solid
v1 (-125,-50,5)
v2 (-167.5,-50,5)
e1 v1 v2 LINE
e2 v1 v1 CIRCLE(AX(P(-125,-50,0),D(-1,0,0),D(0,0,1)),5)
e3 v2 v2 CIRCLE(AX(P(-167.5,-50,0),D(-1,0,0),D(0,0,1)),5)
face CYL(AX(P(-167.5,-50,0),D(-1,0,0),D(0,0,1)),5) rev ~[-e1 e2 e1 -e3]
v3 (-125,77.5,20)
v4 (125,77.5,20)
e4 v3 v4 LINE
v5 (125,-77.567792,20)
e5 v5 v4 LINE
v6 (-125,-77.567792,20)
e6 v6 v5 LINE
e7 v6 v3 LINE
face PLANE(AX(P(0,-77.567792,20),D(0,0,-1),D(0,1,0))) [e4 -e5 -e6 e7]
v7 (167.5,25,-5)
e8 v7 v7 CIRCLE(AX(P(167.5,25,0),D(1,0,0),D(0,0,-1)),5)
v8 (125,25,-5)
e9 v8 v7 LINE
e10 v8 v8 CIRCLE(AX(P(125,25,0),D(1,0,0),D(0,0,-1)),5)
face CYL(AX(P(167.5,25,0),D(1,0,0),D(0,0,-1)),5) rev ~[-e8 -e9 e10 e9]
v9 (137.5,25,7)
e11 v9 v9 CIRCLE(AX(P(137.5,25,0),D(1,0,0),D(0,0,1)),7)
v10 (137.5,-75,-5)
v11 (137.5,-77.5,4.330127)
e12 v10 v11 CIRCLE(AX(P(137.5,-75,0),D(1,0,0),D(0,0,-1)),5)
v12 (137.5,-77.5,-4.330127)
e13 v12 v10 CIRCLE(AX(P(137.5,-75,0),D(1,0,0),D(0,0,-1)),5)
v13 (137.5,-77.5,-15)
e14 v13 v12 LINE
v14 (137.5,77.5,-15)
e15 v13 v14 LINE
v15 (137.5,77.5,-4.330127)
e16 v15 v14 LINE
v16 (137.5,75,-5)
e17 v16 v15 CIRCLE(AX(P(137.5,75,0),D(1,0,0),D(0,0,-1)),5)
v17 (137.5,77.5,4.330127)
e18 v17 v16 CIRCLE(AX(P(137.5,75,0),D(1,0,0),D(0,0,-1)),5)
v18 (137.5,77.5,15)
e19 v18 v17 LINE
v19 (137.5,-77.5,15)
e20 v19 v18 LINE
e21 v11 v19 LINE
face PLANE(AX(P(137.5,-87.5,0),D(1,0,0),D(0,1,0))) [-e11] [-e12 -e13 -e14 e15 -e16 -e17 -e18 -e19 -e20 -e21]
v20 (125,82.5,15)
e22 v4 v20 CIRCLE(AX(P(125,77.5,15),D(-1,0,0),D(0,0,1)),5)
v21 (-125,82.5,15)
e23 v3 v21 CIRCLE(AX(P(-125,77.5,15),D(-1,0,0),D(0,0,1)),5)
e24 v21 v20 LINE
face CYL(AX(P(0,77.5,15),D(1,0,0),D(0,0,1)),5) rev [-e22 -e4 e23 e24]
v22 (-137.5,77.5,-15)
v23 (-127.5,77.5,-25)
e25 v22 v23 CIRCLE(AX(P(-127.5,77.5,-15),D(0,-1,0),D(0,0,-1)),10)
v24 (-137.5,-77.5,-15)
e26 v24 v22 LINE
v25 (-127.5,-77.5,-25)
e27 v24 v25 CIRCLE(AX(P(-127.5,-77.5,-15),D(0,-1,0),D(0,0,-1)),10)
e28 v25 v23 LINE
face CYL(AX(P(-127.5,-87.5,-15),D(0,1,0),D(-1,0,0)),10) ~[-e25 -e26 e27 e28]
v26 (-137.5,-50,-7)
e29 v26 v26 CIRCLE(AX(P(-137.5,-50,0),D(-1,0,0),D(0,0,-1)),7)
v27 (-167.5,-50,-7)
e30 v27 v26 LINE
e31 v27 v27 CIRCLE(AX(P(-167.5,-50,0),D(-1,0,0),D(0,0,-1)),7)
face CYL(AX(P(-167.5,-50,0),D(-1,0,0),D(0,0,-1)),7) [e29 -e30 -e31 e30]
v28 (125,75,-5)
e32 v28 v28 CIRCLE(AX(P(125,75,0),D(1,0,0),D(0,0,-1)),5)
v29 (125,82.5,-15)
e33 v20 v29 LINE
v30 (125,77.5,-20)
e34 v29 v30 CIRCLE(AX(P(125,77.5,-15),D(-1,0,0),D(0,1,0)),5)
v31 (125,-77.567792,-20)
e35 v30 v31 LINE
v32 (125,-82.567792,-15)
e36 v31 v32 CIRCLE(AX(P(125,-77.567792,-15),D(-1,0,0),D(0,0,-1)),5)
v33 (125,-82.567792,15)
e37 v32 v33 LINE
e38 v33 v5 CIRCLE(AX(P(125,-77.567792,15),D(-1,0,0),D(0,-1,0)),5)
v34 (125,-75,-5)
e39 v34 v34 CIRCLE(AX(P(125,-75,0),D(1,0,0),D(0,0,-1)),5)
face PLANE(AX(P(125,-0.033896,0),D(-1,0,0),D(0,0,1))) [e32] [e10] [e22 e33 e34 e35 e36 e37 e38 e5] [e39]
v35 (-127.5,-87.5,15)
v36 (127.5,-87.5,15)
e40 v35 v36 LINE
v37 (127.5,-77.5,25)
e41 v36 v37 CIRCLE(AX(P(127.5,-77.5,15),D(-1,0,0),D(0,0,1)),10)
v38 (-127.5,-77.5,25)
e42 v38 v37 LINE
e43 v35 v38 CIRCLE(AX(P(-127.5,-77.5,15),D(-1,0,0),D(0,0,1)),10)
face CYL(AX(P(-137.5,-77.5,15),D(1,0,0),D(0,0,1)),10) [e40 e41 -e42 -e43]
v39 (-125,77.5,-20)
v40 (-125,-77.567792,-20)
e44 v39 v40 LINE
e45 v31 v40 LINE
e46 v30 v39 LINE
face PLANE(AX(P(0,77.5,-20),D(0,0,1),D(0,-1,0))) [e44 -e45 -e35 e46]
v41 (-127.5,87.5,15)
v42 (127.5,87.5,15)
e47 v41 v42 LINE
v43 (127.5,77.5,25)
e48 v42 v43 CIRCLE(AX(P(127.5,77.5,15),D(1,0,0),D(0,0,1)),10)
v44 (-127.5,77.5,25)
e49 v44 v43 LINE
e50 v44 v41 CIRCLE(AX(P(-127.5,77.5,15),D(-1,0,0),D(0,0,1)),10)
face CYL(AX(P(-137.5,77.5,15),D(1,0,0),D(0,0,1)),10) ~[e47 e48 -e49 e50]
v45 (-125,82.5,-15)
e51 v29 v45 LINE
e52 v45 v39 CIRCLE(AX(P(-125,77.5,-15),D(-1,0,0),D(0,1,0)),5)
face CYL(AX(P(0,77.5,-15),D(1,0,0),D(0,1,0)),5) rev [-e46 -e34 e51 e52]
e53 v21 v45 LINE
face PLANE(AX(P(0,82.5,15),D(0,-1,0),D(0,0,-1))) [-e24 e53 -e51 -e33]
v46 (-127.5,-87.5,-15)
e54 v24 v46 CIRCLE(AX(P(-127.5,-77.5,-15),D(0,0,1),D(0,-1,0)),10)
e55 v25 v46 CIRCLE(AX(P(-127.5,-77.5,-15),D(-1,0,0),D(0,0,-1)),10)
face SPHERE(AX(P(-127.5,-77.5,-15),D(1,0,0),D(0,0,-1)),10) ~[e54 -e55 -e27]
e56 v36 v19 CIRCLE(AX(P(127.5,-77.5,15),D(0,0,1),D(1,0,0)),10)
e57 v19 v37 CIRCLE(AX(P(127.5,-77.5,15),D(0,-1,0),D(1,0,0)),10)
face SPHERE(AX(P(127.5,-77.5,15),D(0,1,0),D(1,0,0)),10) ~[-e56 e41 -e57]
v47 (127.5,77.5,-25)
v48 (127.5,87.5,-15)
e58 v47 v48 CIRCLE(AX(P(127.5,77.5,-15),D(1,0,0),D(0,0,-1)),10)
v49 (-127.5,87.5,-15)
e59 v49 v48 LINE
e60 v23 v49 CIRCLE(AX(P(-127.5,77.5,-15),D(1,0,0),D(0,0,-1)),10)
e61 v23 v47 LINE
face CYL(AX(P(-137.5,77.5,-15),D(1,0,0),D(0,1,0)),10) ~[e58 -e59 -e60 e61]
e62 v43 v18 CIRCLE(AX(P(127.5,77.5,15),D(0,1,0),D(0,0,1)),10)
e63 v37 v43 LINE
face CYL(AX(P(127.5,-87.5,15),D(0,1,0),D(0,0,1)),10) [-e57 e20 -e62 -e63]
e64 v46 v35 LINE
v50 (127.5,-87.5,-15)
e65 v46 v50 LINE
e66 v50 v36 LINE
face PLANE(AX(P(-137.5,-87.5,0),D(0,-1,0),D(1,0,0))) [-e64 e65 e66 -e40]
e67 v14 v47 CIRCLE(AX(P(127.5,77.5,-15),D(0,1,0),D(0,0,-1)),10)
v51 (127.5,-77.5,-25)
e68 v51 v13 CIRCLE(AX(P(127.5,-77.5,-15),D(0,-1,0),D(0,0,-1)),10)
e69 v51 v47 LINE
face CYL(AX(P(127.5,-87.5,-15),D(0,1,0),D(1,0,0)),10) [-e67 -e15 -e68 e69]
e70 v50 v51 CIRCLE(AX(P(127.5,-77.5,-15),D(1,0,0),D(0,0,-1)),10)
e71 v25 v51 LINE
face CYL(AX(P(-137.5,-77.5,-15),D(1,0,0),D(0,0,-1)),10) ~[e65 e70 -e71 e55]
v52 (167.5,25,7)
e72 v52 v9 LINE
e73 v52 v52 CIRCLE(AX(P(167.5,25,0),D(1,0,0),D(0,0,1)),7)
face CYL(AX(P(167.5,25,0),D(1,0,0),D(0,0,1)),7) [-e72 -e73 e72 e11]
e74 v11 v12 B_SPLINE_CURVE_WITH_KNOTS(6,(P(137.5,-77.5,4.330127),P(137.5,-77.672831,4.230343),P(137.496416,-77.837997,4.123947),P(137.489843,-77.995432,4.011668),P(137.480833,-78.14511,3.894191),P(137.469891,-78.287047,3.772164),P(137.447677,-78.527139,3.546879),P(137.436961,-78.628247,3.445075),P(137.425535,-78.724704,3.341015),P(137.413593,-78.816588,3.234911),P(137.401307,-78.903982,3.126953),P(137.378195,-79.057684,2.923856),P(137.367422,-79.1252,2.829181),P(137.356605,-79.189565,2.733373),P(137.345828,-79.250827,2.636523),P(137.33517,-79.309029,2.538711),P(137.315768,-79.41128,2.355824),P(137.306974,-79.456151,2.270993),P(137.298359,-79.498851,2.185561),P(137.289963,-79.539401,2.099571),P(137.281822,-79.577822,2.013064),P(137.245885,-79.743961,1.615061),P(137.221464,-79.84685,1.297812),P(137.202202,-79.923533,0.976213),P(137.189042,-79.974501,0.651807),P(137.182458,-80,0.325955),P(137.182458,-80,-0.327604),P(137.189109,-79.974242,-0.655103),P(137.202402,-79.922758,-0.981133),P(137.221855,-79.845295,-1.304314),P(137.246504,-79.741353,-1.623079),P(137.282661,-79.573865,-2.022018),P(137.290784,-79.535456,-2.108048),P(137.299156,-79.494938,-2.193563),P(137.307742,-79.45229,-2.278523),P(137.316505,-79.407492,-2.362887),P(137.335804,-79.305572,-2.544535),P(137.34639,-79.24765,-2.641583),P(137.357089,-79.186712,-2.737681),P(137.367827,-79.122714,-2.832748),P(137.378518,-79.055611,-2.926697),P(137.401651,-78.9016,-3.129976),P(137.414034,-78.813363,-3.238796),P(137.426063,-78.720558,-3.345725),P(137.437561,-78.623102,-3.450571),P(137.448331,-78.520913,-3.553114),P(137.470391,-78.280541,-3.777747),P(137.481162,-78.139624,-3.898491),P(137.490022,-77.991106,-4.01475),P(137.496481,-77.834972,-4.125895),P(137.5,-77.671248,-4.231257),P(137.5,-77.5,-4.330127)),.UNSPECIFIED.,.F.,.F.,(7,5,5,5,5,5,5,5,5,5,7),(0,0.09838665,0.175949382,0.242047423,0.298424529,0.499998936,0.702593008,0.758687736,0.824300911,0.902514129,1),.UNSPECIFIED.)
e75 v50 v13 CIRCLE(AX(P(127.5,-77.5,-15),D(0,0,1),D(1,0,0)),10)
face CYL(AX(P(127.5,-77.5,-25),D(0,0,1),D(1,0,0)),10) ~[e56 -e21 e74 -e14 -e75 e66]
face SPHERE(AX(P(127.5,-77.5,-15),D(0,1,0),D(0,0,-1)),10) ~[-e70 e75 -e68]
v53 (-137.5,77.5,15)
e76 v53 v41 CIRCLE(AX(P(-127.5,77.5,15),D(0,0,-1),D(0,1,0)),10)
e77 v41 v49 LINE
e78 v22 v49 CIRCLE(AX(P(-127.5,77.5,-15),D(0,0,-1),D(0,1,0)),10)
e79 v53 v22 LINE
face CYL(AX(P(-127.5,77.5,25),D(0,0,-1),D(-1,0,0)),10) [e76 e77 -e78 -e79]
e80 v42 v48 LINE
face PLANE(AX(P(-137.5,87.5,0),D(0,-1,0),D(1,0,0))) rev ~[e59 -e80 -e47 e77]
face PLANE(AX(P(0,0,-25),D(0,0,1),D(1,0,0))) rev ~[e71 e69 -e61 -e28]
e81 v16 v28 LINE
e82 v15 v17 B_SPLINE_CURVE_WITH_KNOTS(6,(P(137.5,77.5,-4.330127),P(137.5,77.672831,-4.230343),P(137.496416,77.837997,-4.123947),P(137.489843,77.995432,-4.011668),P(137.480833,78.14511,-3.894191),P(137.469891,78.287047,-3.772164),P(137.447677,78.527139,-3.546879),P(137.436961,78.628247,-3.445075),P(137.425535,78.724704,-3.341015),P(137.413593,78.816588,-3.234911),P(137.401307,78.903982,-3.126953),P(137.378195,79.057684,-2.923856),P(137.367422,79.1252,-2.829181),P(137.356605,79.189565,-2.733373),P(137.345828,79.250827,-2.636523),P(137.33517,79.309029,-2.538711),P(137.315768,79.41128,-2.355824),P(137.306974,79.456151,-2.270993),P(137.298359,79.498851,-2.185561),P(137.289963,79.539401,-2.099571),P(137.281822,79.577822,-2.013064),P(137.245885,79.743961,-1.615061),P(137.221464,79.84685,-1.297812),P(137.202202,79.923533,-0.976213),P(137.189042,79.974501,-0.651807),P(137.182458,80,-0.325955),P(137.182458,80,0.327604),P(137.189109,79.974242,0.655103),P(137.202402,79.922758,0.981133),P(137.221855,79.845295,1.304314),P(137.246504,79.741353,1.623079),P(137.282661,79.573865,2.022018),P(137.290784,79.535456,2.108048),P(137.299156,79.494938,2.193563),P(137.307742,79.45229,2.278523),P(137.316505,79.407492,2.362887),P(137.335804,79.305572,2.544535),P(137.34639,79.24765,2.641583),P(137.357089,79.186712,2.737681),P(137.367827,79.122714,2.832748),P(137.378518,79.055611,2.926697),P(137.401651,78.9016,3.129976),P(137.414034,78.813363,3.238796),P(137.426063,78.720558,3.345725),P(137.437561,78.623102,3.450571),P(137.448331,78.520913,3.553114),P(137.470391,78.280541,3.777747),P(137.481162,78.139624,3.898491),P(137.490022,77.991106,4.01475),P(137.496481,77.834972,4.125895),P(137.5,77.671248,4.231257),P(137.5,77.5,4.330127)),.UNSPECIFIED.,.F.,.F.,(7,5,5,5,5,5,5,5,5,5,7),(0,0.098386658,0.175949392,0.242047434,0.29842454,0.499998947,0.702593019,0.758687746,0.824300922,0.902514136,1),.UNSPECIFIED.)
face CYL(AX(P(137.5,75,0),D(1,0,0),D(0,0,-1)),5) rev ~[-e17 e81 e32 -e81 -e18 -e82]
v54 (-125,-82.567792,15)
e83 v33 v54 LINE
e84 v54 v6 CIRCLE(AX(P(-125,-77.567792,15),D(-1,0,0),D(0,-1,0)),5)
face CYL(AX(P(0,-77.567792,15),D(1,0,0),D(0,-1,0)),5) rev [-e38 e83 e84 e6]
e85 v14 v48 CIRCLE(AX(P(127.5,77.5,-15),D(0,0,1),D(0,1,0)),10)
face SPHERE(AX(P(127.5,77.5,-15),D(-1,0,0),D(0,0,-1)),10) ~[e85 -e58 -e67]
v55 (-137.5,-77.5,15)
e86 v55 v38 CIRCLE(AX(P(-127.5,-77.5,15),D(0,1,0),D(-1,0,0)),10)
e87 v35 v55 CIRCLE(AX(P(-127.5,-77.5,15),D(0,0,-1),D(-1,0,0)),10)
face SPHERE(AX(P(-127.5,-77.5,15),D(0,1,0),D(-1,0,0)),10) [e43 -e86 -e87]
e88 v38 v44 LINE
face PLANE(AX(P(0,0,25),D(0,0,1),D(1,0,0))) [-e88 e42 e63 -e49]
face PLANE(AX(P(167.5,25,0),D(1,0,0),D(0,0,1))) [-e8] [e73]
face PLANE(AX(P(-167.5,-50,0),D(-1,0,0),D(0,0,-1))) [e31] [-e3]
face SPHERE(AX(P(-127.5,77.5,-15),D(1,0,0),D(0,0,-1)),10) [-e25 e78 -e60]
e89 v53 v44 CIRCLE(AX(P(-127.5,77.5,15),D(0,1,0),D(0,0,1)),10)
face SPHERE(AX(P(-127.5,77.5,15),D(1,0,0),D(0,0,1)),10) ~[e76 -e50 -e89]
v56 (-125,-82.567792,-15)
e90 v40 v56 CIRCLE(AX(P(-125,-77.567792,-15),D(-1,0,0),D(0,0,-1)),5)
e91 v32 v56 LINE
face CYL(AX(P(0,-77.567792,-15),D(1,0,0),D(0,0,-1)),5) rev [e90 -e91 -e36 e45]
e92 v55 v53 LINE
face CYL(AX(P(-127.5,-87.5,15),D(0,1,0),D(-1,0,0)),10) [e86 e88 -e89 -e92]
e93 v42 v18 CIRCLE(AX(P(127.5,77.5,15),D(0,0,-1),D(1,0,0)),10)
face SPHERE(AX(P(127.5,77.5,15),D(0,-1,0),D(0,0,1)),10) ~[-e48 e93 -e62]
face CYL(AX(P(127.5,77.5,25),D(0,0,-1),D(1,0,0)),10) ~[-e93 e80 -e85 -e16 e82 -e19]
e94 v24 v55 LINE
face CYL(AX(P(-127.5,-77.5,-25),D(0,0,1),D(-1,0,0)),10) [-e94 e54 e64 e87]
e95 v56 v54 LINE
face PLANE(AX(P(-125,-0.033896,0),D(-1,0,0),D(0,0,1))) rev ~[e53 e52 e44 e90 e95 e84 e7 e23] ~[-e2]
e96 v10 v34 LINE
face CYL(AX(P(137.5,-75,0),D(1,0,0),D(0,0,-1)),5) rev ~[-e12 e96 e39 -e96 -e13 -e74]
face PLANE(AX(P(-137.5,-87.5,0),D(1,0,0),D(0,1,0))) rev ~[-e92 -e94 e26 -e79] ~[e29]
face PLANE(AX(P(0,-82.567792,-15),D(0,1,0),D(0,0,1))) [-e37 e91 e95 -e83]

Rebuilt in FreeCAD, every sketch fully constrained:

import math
import FreeCAD as App
import Part
import Sketcher

V = App.Vector
Q = App.Units.Quantity


def add_polygon(sketch, points):
    """Adds a closed chain of lines whose ends are joined by coincident constraints."""
    first, n = sketch.GeometryCount, len(points)
    for a, b in zip(points, points[1:] + points[:1]):
        sketch.addGeometry(Part.LineSegment(App.Vector(*a, 0), App.Vector(*b, 0)), False)
    for i in range(n):
        sketch.addConstraint(Sketcher.Constraint("Coincident", first + i, 2, first + (i + 1) % n, 1))

doc = App.newDocument("Part")
body = doc.addObject("PartDesign::Body", "Body")

# Sketch on XY plane
sketch1 = doc.addObject("Sketcher::SketchObject", "Sketch")
body.addObject(sketch1)
sketch1.AttachmentSupport = (doc.XY_Plane, [""])
sketch1.MapMode = "FlatFace"
add_polygon(sketch1, [(-138, 88), (-138, -88), (138, -88), (138, 88)])  # lines 0-3
sketch1.addConstraint([
    Sketcher.Constraint("Vertical", 0),
    Sketcher.Constraint("Horizontal", 1),
    Sketcher.Constraint("Vertical", 2),
    Sketcher.Constraint("Horizontal", 3),
    Sketcher.Constraint("Symmetric", 0, 2, 2, 2, -1, 1),
    Sketcher.Constraint("DistanceX", 1, 1, 1, 2, Q("275 mm")),
    Sketcher.Constraint("DistanceY", 0, 2, 0, 1, Q("175 mm")),
])
pad1 = doc.addObject("PartDesign::Pad", "Pad")
body.addObject(pad1)
pad1.Profile = sketch1
pad1.Length = 50
pad1.Midplane = True
doc.recompute()

fillet = doc.addObject("PartDesign::Fillet", "Fillet")
body.addObject(fillet)
fillet.Base = (pad1, ["Edge1"])
fillet.UseAllEdges = True
fillet.Radius = 10

# Sketch on YZ plane
sketch2 = doc.addObject("Sketcher::SketchObject", "Sketch001")
body.addObject(sketch2)
sketch2.AttachmentSupport = (doc.YZ_Plane, [""])
sketch2.MapMode = "FlatFace"
sketch2.AttachmentOffset = App.Placement(V(0, 0, 137.5), App.Rotation())
sketch2.addGeometry([
    Part.Circle(V(75, 0, 0), V(0, 0, 1), 5),
    Part.Circle(V(25, 0, 0), V(0, 0, 1), 5),
    Part.Circle(V(-75, 0, 0), V(0, 0, 1), 5),
], False)
sketch2.addConstraint([
    Sketcher.Constraint("Equal", 0, 1),
    Sketcher.Constraint("Equal", 1, 2),
    Sketcher.Constraint("Symmetric", 0, 3, 2, 3, -1, 1),
    Sketcher.Constraint("PointOnObject", 0, 3, -1),
    Sketcher.Constraint("PointOnObject", 1, 3, -1),
    Sketcher.Constraint("Diameter", 0, Q("10 mm")),
    Sketcher.Constraint("DistanceX", -1, 1, 0, 3, Q("75 mm")),
    Sketcher.Constraint("DistanceX", -1, 1, 1, 3, Q("25 mm")),
])
pocket1 = doc.addObject("PartDesign::Pocket", "Pocket")
body.addObject(pocket1)
pocket1.Profile = sketch2
pocket1.Length = 180

# Sketch on YZ plane
sketch3 = doc.addObject("Sketcher::SketchObject", "Sketch002")
body.addObject(sketch3)
sketch3.AttachmentSupport = (doc.YZ_Plane, [""])
sketch3.MapMode = "FlatFace"
sketch3.addGeometry([
    Part.LineSegment(V(82, -15, 0), V(82, 15, 0)),  # 0
    Part.ArcOfCircle(Part.Circle(V(78, 15, 0), V(0, 0, 1), 5), math.radians(0), math.radians(90)),  # 1
    Part.LineSegment(V(78, 20, 0), V(-78, 20, 0)),  # 2
    Part.ArcOfCircle(Part.Circle(V(-78, 15, 0), V(0, 0, 1), 5), math.radians(90), math.radians(180)),  # 3
    Part.LineSegment(V(-83, 15, 0), V(-83, -15, 0)),  # 4
    Part.ArcOfCircle(Part.Circle(V(-78, -15, 0), V(0, 0, 1), 5), math.radians(180), math.radians(270)),  # 5
    Part.LineSegment(V(-78, -20, 0), V(78, -20, 0)),  # 6
    Part.ArcOfCircle(Part.Circle(V(78, -15, 0), V(0, 0, 1), 5), math.radians(-90), math.radians(0)),  # 7
], False)
sketch3.addConstraint([
    Sketcher.Constraint("Tangent", 0, 2, 1, 1),
    Sketcher.Constraint("Tangent", 1, 2, 2, 1),
    Sketcher.Constraint("Tangent", 2, 2, 3, 1),
    Sketcher.Constraint("Tangent", 3, 2, 4, 1),
    Sketcher.Constraint("Tangent", 4, 2, 5, 1),
    Sketcher.Constraint("Tangent", 5, 2, 6, 1),
    Sketcher.Constraint("Tangent", 6, 2, 7, 1),
    Sketcher.Constraint("Tangent", 7, 2, 0, 1),
    Sketcher.Constraint("Vertical", 0),
    Sketcher.Constraint("Horizontal", 2),
    Sketcher.Constraint("Vertical", 4),
    Sketcher.Constraint("Horizontal", 6),
    Sketcher.Constraint("Equal", 1, 3),
    Sketcher.Constraint("Equal", 3, 5),
    Sketcher.Constraint("Equal", 5, 7),
    Sketcher.Constraint("Radius", 1, Q("5 mm")),
    Sketcher.Constraint("DistanceY", 0, 1, 0, 2, Q("30 mm")),
    Sketcher.Constraint("DistanceY", -1, 1, 1, 3, Q("15 mm")),
    Sketcher.Constraint("DistanceX", -1, 1, 1, 3, Q("77.5 mm")),
    Sketcher.Constraint("DistanceX", 2, 2, 2, 1, Q("155.067792 mm")),
])
pocket2 = doc.addObject("PartDesign::Pocket", "Pocket001")
body.addObject(pocket2)
pocket2.Profile = sketch3
pocket2.Length = 250
pocket2.Midplane = True

# Sketch on YZ plane
sketch4 = doc.addObject("Sketcher::SketchObject", "Sketch003")
body.addObject(sketch4)
sketch4.AttachmentSupport = (doc.YZ_Plane, [""])
sketch4.MapMode = "FlatFace"
sketch4.AttachmentOffset = App.Placement(V(0, 0, -137.5), App.Rotation())
sketch4.addGeometry(Part.Circle(V(-50, 0, 0), V(0, 0, 1), 5), False)
sketch4.addConstraint([
    Sketcher.Constraint("PointOnObject", 0, 3, -1),
    Sketcher.Constraint("Diameter", 0, Q("10 mm")),
    Sketcher.Constraint("DistanceX", 0, 3, -1, 1, Q("50 mm")),
])
pocket3 = doc.addObject("PartDesign::Pocket", "Pocket002")
body.addObject(pocket3)
pocket3.Profile = sketch4
pocket3.Length = 190
pocket3.Reversed = True

# Sketch on YZ plane
sketch5 = doc.addObject("Sketcher::SketchObject", "Sketch004")
body.addObject(sketch5)
sketch5.AttachmentSupport = (doc.YZ_Plane, [""])
sketch5.MapMode = "FlatFace"
sketch5.AttachmentOffset = App.Placement(V(0, 0, 167.5), App.Rotation())
sketch5.addGeometry([
    Part.Circle(V(25, 0, 0), V(0, 0, 1), 7),
    Part.Circle(V(25, 0, 0), V(0, 0, 1), 5),
], False)
sketch5.addConstraint([
    Sketcher.Constraint("Coincident", 1, 3, 0, 3),
    Sketcher.Constraint("PointOnObject", 0, 3, -1),
    Sketcher.Constraint("Diameter", 0, Q("14 mm")),
    Sketcher.Constraint("Diameter", 1, Q("10 mm")),
    Sketcher.Constraint("DistanceX", -1, 1, 0, 3, Q("25 mm")),
])
pad2 = doc.addObject("PartDesign::Pad", "Pad001")
body.addObject(pad2)
pad2.Profile = sketch5
pad2.Length = 30
pad2.Reversed = True

# Sketch on YZ plane
sketch6 = doc.addObject("Sketcher::SketchObject", "Sketch005")
body.addObject(sketch6)
sketch6.AttachmentSupport = (doc.YZ_Plane, [""])
sketch6.MapMode = "FlatFace"
sketch6.AttachmentOffset = App.Placement(V(0, 0, -167.5), App.Rotation())
sketch6.addGeometry([
    Part.Circle(V(-50, 0, 0), V(0, 0, 1), 7),
    Part.Circle(V(-50, 0, 0), V(0, 0, 1), 5),
], False)
sketch6.addConstraint([
    Sketcher.Constraint("Coincident", 1, 3, 0, 3),
    Sketcher.Constraint("PointOnObject", 0, 3, -1),
    Sketcher.Constraint("Diameter", 0, Q("14 mm")),
    Sketcher.Constraint("Diameter", 1, Q("10 mm")),
    Sketcher.Constraint("DistanceX", 0, 3, -1, 1, Q("50 mm")),
])
pad3 = doc.addObject("PartDesign::Pad", "Pad002")
body.addObject(pad3)
pad3.Profile = sketch6
pad3.Length = 30

doc.recompute()
